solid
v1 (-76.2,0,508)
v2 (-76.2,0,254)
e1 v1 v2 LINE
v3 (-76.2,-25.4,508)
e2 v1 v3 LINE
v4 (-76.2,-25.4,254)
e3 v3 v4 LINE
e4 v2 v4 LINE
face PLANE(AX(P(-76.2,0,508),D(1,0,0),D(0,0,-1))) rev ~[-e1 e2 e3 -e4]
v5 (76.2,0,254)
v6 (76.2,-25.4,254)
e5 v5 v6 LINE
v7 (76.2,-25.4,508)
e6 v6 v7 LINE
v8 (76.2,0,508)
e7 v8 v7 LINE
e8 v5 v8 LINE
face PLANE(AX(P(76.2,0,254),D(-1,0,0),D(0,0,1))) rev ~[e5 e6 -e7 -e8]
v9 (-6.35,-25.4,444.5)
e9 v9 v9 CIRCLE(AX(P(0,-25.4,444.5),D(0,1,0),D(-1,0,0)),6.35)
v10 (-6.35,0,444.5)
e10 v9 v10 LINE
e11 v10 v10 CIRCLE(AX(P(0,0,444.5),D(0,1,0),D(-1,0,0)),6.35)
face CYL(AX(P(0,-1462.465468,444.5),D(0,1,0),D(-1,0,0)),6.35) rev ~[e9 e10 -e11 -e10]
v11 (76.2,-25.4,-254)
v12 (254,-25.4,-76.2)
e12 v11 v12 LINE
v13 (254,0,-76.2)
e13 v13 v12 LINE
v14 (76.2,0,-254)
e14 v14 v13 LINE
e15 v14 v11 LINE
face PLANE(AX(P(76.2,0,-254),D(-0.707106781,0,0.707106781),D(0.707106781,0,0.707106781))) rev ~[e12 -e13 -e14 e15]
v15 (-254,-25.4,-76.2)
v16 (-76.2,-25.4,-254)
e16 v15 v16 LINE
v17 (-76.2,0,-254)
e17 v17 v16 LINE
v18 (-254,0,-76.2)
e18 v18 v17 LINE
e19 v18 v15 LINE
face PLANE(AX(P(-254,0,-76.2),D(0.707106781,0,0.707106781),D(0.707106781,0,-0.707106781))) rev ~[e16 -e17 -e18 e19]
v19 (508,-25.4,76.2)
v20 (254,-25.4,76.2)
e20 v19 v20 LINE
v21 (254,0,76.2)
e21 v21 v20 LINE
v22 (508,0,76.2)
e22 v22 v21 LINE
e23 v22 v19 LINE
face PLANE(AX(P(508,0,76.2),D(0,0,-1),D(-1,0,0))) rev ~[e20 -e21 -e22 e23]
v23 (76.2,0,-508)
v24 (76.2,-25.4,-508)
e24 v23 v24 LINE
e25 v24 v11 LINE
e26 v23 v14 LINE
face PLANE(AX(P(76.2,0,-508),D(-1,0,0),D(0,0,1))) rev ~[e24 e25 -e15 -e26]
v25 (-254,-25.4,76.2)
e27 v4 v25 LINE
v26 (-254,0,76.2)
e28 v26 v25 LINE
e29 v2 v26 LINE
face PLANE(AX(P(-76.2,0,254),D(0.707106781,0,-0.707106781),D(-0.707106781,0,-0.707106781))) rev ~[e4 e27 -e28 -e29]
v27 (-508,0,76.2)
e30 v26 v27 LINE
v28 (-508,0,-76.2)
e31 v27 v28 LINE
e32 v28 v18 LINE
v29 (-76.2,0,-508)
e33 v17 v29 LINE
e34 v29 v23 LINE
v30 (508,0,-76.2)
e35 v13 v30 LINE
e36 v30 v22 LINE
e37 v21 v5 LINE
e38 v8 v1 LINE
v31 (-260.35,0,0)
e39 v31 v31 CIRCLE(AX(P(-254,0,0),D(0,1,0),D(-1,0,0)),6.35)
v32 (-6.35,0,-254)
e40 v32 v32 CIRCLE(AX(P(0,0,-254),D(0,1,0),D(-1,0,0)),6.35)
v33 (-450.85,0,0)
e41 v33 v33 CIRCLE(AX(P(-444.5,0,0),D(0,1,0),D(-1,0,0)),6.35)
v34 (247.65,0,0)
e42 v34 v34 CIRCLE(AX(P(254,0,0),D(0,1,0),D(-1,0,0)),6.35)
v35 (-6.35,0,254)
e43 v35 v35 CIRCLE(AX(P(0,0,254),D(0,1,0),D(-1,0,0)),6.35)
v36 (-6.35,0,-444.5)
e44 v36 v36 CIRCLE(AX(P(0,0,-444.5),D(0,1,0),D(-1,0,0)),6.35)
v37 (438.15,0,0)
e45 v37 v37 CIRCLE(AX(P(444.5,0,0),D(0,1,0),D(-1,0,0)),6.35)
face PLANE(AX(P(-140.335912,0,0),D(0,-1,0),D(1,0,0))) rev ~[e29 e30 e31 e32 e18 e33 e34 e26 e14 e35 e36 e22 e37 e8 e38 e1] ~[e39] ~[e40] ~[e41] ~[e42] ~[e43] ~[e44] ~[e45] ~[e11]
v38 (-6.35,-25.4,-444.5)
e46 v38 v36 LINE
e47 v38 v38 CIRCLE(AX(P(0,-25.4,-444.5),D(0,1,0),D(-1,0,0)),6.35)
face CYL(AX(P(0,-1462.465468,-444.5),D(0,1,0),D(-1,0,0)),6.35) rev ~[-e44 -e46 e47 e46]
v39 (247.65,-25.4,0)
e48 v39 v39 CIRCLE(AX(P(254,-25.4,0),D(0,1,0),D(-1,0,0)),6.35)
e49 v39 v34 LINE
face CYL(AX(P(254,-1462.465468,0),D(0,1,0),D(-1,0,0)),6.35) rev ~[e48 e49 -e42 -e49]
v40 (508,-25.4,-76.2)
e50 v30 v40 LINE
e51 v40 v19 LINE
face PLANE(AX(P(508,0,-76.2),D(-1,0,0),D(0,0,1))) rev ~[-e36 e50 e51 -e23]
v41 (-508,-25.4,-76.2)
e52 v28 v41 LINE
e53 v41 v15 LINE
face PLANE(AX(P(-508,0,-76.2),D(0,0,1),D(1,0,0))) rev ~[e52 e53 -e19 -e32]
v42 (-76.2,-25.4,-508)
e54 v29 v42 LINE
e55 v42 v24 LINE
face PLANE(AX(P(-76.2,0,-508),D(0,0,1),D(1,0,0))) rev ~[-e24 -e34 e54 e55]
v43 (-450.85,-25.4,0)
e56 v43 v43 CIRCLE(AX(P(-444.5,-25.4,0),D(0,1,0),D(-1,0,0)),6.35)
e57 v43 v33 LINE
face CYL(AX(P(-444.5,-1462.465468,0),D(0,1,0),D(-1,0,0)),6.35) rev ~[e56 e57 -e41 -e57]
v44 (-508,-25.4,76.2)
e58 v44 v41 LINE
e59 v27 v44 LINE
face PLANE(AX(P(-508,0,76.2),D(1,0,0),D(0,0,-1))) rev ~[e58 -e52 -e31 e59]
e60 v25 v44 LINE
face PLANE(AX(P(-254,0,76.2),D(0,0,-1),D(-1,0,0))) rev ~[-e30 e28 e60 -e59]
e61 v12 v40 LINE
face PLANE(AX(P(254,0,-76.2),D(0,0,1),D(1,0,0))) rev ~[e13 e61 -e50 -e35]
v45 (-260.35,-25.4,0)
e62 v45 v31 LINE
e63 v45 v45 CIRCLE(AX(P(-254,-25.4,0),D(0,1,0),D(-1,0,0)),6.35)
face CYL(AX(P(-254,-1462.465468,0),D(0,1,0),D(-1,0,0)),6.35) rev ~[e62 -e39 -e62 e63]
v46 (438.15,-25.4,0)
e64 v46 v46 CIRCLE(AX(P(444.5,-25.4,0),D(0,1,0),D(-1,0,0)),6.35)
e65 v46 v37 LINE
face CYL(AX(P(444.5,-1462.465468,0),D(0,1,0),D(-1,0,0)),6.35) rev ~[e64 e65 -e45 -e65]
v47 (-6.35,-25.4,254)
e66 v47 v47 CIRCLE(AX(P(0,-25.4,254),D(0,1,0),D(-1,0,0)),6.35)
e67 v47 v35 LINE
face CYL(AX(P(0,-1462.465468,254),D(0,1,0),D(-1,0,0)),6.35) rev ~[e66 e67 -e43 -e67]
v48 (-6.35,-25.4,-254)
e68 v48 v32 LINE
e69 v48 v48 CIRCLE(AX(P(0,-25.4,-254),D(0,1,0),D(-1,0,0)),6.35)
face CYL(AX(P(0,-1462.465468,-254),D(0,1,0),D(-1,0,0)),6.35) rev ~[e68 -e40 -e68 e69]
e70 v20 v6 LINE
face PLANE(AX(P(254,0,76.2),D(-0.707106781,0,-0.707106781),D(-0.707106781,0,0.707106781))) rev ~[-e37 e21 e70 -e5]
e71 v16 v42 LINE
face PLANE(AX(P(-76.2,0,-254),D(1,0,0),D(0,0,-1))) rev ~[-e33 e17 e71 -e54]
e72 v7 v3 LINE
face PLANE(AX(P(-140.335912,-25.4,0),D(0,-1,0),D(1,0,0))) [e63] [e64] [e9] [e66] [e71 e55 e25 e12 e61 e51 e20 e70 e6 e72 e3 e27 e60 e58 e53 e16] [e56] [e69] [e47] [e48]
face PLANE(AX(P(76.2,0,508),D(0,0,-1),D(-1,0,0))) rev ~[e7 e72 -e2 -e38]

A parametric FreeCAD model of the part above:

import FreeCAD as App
import Part
import Sketcher
Q = App.Units.Quantity

doc = App.newDocument("Part")
body = doc.addObject("PartDesign::Body", "Body")

# Sketch on XZ plane
sketch1 = body.newObject("Sketcher::SketchObject", "Sketch")
sketch1.AttachmentSupport = (doc.getObject("XZ_Plane"), [""])
sketch1.MapMode = "FlatFace"
sketch1.addGeometry(Part.LineSegment(App.Vector(508, 76, 0), App.Vector(254, 76, 0)), False)
sketch1.addGeometry(Part.LineSegment(App.Vector(254, 76, 0), App.Vector(76, 254, 0)), False)
sketch1.addGeometry(Part.LineSegment(App.Vector(76, 254, 0), App.Vector(76, 508, 0)), False)
sketch1.addGeometry(Part.LineSegment(App.Vector(76, 508, 0), App.Vector(-76, 508, 0)), False)
sketch1.addGeometry(Part.LineSegment(App.Vector(-76, 508, 0), App.Vector(-76, 254, 0)), False)
sketch1.addGeometry(Part.LineSegment(App.Vector(-76, 254, 0), App.Vector(-254, 76, 0)), False)
sketch1.addGeometry(Part.LineSegment(App.Vector(-254, 76, 0), App.Vector(-508, 76, 0)), False)
sketch1.addGeometry(Part.LineSegment(App.Vector(-508, 76, 0), App.Vector(-508, -76, 0)), False)
sketch1.addGeometry(Part.LineSegment(App.Vector(-508, -76, 0), App.Vector(-254, -76, 0)), False)
sketch1.addGeometry(Part.LineSegment(App.Vector(-254, -76, 0), App.Vector(-76, -254, 0)), False)
sketch1.addGeometry(Part.LineSegment(App.Vector(-76, -254, 0), App.Vector(-76, -508, 0)), False)
sketch1.addGeometry(Part.LineSegment(App.Vector(-76, -508, 0), App.Vector(76, -508, 0)), False)
sketch1.addGeometry(Part.LineSegment(App.Vector(76, -508, 0), App.Vector(76, -254, 0)), False)
sketch1.addGeometry(Part.LineSegment(App.Vector(76, -254, 0), App.Vector(254, -76, 0)), False)
sketch1.addGeometry(Part.LineSegment(App.Vector(254, -76, 0), App.Vector(508, -76, 0)), False)
sketch1.addGeometry(Part.LineSegment(App.Vector(508, -76, 0), App.Vector(508, 76, 0)), False)
sketch1.addConstraint(Sketcher.Constraint("Coincident", 0, 2, 1, 1))
sketch1.addConstraint(Sketcher.Constraint("Coincident", 1, 2, 2, 1))
sketch1.addConstraint(Sketcher.Constraint("Coincident", 2, 2, 3, 1))
sketch1.addConstraint(Sketcher.Constraint("Coincident", 3, 2, 4, 1))
sketch1.addConstraint(Sketcher.Constraint("Coincident", 4, 2, 5, 1))
sketch1.addConstraint(Sketcher.Constraint("Coincident", 5, 2, 6, 1))
sketch1.addConstraint(Sketcher.Constraint("Coincident", 6, 2, 7, 1))
sketch1.addConstraint(Sketcher.Constraint("Coincident", 7, 2, 8, 1))
sketch1.addConstraint(Sketcher.Constraint("Coincident", 8, 2, 9, 1))
sketch1.addConstraint(Sketcher.Constraint("Coincident", 9, 2, 10, 1))
sketch1.addConstraint(Sketcher.Constraint("Coincident", 10, 2, 11, 1))
sketch1.addConstraint(Sketcher.Constraint("Coincident", 11, 2, 12, 1))
sketch1.addConstraint(Sketcher.Constraint("Coincident", 12, 2, 13, 1))
sketch1.addConstraint(Sketcher.Constraint("Coincident", 13, 2, 14, 1))
sketch1.addConstraint(Sketcher.Constraint("Coincident", 14, 2, 15, 1))
sketch1.addConstraint(Sketcher.Constraint("Coincident", 15, 2, 0, 1))
sketch1.addConstraint(Sketcher.Constraint("Horizontal", 0))
sketch1.addConstraint(Sketcher.Constraint("Vertical", 2))
sketch1.addConstraint(Sketcher.Constraint("Horizontal", 3))
sketch1.addConstraint(Sketcher.Constraint("Vertical", 4))
sketch1.addConstraint(Sketcher.Constraint("Horizontal", 6))
sketch1.addConstraint(Sketcher.Constraint("Vertical", 7))
sketch1.addConstraint(Sketcher.Constraint("Horizontal", 8))
sketch1.addConstraint(Sketcher.Constraint("Vertical", 10))
sketch1.addConstraint(Sketcher.Constraint("Horizontal", 11))
sketch1.addConstraint(Sketcher.Constraint("Vertical", 12))
sketch1.addConstraint(Sketcher.Constraint("Horizontal", 14))
sketch1.addConstraint(Sketcher.Constraint("Vertical", 15))
sketch1.addConstraint(Sketcher.Constraint("Symmetric", 0, 2, 8, 2, -1, 1))
sketch1.addConstraint(Sketcher.Constraint("Symmetric", 1, 2, 9, 2, -1, 1))
sketch1.addConstraint(Sketcher.Constraint("Symmetric", 3, 2, 11, 2, -1, 1))
sketch1.addConstraint(Sketcher.Constraint("Symmetric", 5, 2, 13, 2, -1, 1))
sketch1.addConstraint(Sketcher.Constraint("Symmetric", 1, 2, 4, 2, -2))
sketch1.addConstraint(Sketcher.Constraint("Symmetric", 0, 2, 5, 2, -2))
sketch1.addConstraint(Sketcher.Constraint("Perpendicular", 1, 5))
sketch1.addConstraint(Sketcher.Constraint("Perpendicular", 9, 13))
sketch1.addConstraint(Sketcher.Constraint("Equal", 0, 6))
sketch1.addConstraint(Sketcher.Constraint("Equal", 14, 2))
sketch1.addConstraint(Sketcher.Constraint("Equal", 11, 7))
sketch1.addConstraint(Sketcher.Constraint("DistanceX", 0, 2, 0, 1, Q("10 in")))
sketch1.addConstraint(Sketcher.Constraint("DistanceX", 3, 2, 3, 1, Q("6 in")))
sketch1.addConstraint(Sketcher.Constraint("DistanceX", -1, 1, 0, 2, Q("10 in")))
pad1 = body.newObject("PartDesign::Pad", "Pad")
pad1.Profile = sketch1
pad1.Length = Q("1 in")

# Sketch on XZ plane
sketch2 = body.newObject("Sketcher::SketchObject", "Sketch001")
sketch2.AttachmentSupport = (doc.getObject("XZ_Plane"), [""])
sketch2.MapMode = "FlatFace"
sketch2.AttachmentOffset = App.Placement(App.Vector(0, 0, 1 * 25.4), App.Rotation())
sketch2.addGeometry(Part.Circle(App.Vector(0, 444, 0), App.Vector(0, 0, 1), 6), False)
sketch2.addGeometry(Part.Circle(App.Vector(0, 254, 0), App.Vector(0, 0, 1), 6), False)
sketch2.addGeometry(Part.Circle(App.Vector(254, 0, 0), App.Vector(0, 0, 1), 6), False)
sketch2.addGeometry(Part.Circle(App.Vector(444, 0, 0), App.Vector(0, 0, 1), 6), False)
sketch2.addGeometry(Part.Circle(App.Vector(0, -254, 0), App.Vector(0, 0, 1), 6), False)
sketch2.addGeometry(Part.Circle(App.Vector(0, -444, 0), App.Vector(0, 0, 1), 6), False)
sketch2.addGeometry(Part.Circle(App.Vector(-254, 0, 0), App.Vector(0, 0, 1), 6), False)
sketch2.addGeometry(Part.Circle(App.Vector(-444, 0, 0), App.Vector(0, 0, 1), 6), False)
sketch2.addConstraint(Sketcher.Constraint("Equal", 0, 1))
sketch2.addConstraint(Sketcher.Constraint("Equal", 1, 2))
sketch2.addConstraint(Sketcher.Constraint("Equal", 2, 3))
sketch2.addConstraint(Sketcher.Constraint("Equal", 3, 4))
sketch2.addConstraint(Sketcher.Constraint("Equal", 4, 5))
sketch2.addConstraint(Sketcher.Constraint("Equal", 5, 6))
sketch2.addConstraint(Sketcher.Constraint("Equal", 6, 7))
sketch2.addConstraint(Sketcher.Constraint("Symmetric", 1, 3, 4, 3, -1, 1))
sketch2.addConstraint(Sketcher.Constraint("Symmetric", 0, 3, 5, 3, -1, 1))
sketch2.addConstraint(Sketcher.Constraint("Symmetric", 2, 3, 6, 3, -1, 1))
sketch2.addConstraint(Sketcher.Constraint("Symmetric", 3, 3, 7, 3, -1, 1))
sketch2.addConstraint(Sketcher.Constraint("PointOnObject", 0, 3, -2))
sketch2.addConstraint(Sketcher.Constraint("PointOnObject", 1, 3, -2))
sketch2.addConstraint(Sketcher.Constraint("PointOnObject", 2, 3, -1))
sketch2.addConstraint(Sketcher.Constraint("PointOnObject", 3, 3, -1))
sketch2.addConstraint(Sketcher.Constraint("Diameter", 0, Q("0.5 in")))
sketch2.addConstraint(Sketcher.Constraint("DistanceY", -1, 1, 1, 3, Q("10 in")))
sketch2.addConstraint(Sketcher.Constraint("DistanceX", -1, 1, 2, 3, Q("10 in")))
sketch2.addConstraint(Sketcher.Constraint("DistanceY", 5, 3, 0, 3, Q("35 in")))
sketch2.addConstraint(Sketcher.Constraint("DistanceX", -1, 1, 3, 3, Q("17.5 in")))
doc.recompute()
hole = body.newObject("PartDesign::Hole", "Hole")
hole.Profile = sketch2
hole.ThreadType = "None"
hole.Diameter = Q("0.5 in")
hole.DepthType = "ThroughAll"

doc.recompute()
